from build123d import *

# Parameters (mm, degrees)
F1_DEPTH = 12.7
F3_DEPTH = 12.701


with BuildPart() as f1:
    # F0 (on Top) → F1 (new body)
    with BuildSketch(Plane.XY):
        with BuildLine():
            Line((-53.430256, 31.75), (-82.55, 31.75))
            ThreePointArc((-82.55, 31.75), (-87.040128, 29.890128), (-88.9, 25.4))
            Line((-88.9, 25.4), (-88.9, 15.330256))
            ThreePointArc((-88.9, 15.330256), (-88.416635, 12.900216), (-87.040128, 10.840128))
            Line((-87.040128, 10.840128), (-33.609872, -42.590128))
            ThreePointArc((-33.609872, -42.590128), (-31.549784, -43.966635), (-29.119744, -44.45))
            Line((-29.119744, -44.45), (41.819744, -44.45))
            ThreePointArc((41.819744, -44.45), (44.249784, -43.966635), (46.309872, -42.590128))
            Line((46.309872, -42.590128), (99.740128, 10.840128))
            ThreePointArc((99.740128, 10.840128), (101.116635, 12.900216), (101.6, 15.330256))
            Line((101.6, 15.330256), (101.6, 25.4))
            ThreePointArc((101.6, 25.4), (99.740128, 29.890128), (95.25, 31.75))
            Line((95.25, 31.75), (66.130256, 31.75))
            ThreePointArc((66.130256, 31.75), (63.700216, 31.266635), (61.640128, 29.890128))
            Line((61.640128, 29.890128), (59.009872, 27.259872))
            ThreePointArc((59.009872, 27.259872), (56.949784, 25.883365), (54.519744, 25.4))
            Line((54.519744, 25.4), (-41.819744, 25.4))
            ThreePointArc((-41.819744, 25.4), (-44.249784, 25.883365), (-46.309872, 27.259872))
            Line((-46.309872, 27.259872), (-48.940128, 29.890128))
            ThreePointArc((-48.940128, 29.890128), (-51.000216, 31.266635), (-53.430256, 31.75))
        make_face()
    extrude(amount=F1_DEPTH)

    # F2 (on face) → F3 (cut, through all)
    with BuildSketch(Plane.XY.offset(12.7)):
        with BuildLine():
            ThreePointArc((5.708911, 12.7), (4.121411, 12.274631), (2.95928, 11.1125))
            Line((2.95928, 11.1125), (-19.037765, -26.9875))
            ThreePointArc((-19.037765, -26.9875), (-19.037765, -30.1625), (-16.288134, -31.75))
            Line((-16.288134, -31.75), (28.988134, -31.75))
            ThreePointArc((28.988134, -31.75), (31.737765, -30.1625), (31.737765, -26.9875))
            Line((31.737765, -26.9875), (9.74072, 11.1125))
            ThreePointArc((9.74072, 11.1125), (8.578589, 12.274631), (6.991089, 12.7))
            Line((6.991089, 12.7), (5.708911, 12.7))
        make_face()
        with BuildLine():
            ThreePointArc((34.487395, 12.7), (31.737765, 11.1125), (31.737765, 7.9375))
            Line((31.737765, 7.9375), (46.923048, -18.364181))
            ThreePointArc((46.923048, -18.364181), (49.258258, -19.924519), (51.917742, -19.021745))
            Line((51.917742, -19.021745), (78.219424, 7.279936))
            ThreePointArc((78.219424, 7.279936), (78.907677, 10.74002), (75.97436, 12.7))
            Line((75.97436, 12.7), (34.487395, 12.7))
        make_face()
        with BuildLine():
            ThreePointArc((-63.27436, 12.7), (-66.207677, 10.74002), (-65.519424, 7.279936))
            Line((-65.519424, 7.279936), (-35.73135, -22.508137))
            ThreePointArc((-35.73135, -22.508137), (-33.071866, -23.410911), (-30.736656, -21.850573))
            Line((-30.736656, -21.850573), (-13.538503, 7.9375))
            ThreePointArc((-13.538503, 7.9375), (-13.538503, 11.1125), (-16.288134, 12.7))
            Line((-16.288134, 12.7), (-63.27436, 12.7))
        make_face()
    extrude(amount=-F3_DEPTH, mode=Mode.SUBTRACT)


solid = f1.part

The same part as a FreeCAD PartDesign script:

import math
import FreeCAD as App
import Part
import Sketcher

V = App.Vector
Q = App.Units.Quantity

doc = App.newDocument("Part")
body = doc.addObject("PartDesign::Body", "Body")

# Sketch on XY plane
sketch1 = body.newObject("Sketcher::SketchObject", "Sketch")
sketch1.AttachmentSupport = (doc.getObject("XY_Plane"), [""])
sketch1.MapMode = "FlatFace"
sketch1.addGeometry(Part.LineSegment(V(-53.4, 31.8, 0), V(-82.5, 31.8, 0)), False)
sketch1.addGeometry(Part.ArcOfCircle(Part.Circle(V(-82.5, 25.4, 0), V(0, 0, 1), 6.4), math.radians(90), math.radians(180)), False)
sketch1.addGeometry(Part.LineSegment(V(-88.9, 25.4, 0), V(-88.9, 15.3, 0)), False)
sketch1.addGeometry(Part.ArcOfCircle(Part.Circle(V(-82.6, 15.3, 0), V(0, 0, 1), 6.3), math.radians(180), math.radians(225)), False)
sketch1.addGeometry(Part.LineSegment(V(-87, 10.8, 0), V(-33.6, -42.6, 0)), False)
sketch1.addGeometry(Part.ArcOfCircle(Part.Circle(V(-29.1, -38.1, 0), V(0, 0, 1), 6.3), math.radians(-135), math.radians(-90)), False)
sketch1.addGeometry(Part.LineSegment(V(-29.1, -44.5, 0), V(41.8, -44.5, 0)), False)
sketch1.addGeometry(Part.ArcOfCircle(Part.Circle(V(41.8, -38.1, 0), V(0, 0, 1), 6.3), math.radians(-90), math.radians(-45)), False)
sketch1.addGeometry(Part.LineSegment(V(46.3, -42.6, 0), V(99.7, 10.8, 0)), False)
sketch1.addGeometry(Part.ArcOfCircle(Part.Circle(V(95.3, 15.3, 0), V(0, 0, 1), 6.3), math.radians(-45), math.radians(0)), False)
sketch1.addGeometry(Part.LineSegment(V(101.6, 15.3, 0), V(101.6, 25.4, 0)), False)
sketch1.addGeometry(Part.ArcOfCircle(Part.Circle(V(95.2, 25.4, 0), V(0, 0, 1), 6.4), math.radians(0), math.radians(90)), False)
sketch1.addGeometry(Part.LineSegment(V(95.2, 31.8, 0), V(66.1, 31.8, 0)), False)
sketch1.addGeometry(Part.ArcOfCircle(Part.Circle(V(66.1, 25.4, 0), V(0, 0, 1), 6.3), math.radians(90), math.radians(135)), False)
sketch1.addGeometry(Part.LineSegment(V(61.6, 29.9, 0), V(59, 27.3, 0)), False)
sketch1.addGeometry(Part.ArcOfCircle(Part.Circle(V(54.5, 31.7, 0), V(0, 0, 1), 6.3), math.radians(-90), math.radians(-45)), False)
sketch1.addGeometry(Part.LineSegment(V(54.5, 25.4, 0), V(-41.8, 25.4, 0)), False)
sketch1.addGeometry(Part.ArcOfCircle(Part.Circle(V(-41.8, 31.7, 0), V(0, 0, 1), 6.3), math.radians(-135), math.radians(-90)), False)
sketch1.addGeometry(Part.LineSegment(V(-46.3, 27.3, 0), V(-48.9, 29.9, 0)), False)
sketch1.addGeometry(Part.ArcOfCircle(Part.Circle(V(-53.4, 25.4, 0), V(0, 0, 1), 6.3), math.radians(45), math.radians(90)), False)
sketch1.addConstraint(Sketcher.Constraint("Tangent", 0, 2, 1, 1))
sketch1.addConstraint(Sketcher.Constraint("Tangent", 1, 2, 2, 1))
sketch1.addConstraint(Sketcher.Constraint("Tangent", 2, 2, 3, 1))
sketch1.addConstraint(Sketcher.Constraint("Tangent", 3, 2, 4, 1))
sketch1.addConstraint(Sketcher.Constraint("Tangent", 4, 2, 5, 1))
sketch1.addConstraint(Sketcher.Constraint("Tangent", 5, 2, 6, 1))
sketch1.addConstraint(Sketcher.Constraint("Tangent", 6, 2, 7, 1))
sketch1.addConstraint(Sketcher.Constraint("Tangent", 7, 2, 8, 1))
sketch1.addConstraint(Sketcher.Constraint("Tangent", 8, 2, 9, 1))
sketch1.addConstraint(Sketcher.Constraint("Tangent", 9, 2, 10, 1))
sketch1.addConstraint(Sketcher.Constraint("Tangent", 10, 2, 11, 1))
sketch1.addConstraint(Sketcher.Constraint("Tangent", 11, 2, 12, 1))
sketch1.addConstraint(Sketcher.Constraint("Tangent", 12, 2, 13, 1))
sketch1.addConstraint(Sketcher.Constraint("Tangent", 13, 2, 14, 1))
sketch1.addConstraint(Sketcher.Constraint("Tangent", 14, 2, 15, 2))
sketch1.addConstraint(Sketcher.Constraint("Tangent", 15, 1, 16, 1))
sketch1.addConstraint(Sketcher.Constraint("Tangent", 16, 2, 17, 2))
sketch1.addConstraint(Sketcher.Constraint("Tangent", 17, 1, 18, 1))
sketch1.addConstraint(Sketcher.Constraint("Tangent", 18, 2, 19, 1))
sketch1.addConstraint(Sketcher.Constraint("Tangent", 19, 2, 0, 1))
sketch1.addConstraint(Sketcher.Constraint("Horizontal", 0))
sketch1.addConstraint(Sketcher.Constraint("Vertical", 2))
sketch1.addConstraint(Sketcher.Constraint("Horizontal", 6))
sketch1.addConstraint(Sketcher.Constraint("Vertical", 10))
sketch1.addConstraint(Sketcher.Constraint("Horizontal", 12))
sketch1.addConstraint(Sketcher.Constraint("Horizontal", 16))
sketch1.addConstraint(Sketcher.Constraint("Equal", 1, 3))
sketch1.addConstraint(Sketcher.Constraint("Equal", 3, 5))
sketch1.addConstraint(Sketcher.Constraint("Equal", 5, 7))
sketch1.addConstraint(Sketcher.Constraint("Equal", 7, 9))
sketch1.addConstraint(Sketcher.Constraint("Equal", 9, 11))
sketch1.addConstraint(Sketcher.Constraint("Equal", 11, 13))
sketch1.addConstraint(Sketcher.Constraint("Equal", 13, 15))
sketch1.addConstraint(Sketcher.Constraint("Equal", 15, 17))
sketch1.addConstraint(Sketcher.Constraint("Equal", 17, 19))
sketch1.addConstraint(Sketcher.Constraint("Perpendicular", 4, 8))
sketch1.addConstraint(Sketcher.Constraint("Parallel", 8, 14))
sketch1.addConstraint(Sketcher.Constraint("Perpendicular", 14, 18))
sketch1.addConstraint(Sketcher.Constraint("Horizontal", 3, 3, 9, 3))
sketch1.addConstraint(Sketcher.Constraint("Horizontal", 1, 3, 11, 3))
sketch1.addConstraint(Sketcher.Constraint("Horizontal", 17, 3, 0, 2))
sketch1.addConstraint(Sketcher.Constraint("Horizontal", 4, 2, 7, 2))
sketch1.addConstraint(Sketcher.Constraint("Equal", 0, 12))
sketch1.addConstraint(Sketcher.Constraint("Radius", 1, Q("0.25 in")))
sketch1.addConstraint(Sketcher.Constraint("DistanceY", -1, 1, 1, 3, Q("1 in")))
sketch1.addConstraint(Sketcher.Constraint("DistanceX", -1, 1, 9, 2, Q("4 in")))
sketch1.addConstraint(Sketcher.Constraint("DistanceX", 3, 3, 9, 3, Q("7.0000001 in")))
sketch1.addConstraint(Sketcher.Constraint("DistanceY", 5, 2, 17, 3, Q("3 in")))
sketch1.addConstraint(Sketcher.Constraint("DistanceX", 7, 3, 15, 3, Q("0.5 in")))
sketch1.addConstraint(Sketcher.Constraint("DistanceX", 5, 3, 13, 3, Q("3.75 in")))
pad1 = body.newObject("PartDesign::Pad", "Pad")
pad1.Profile = sketch1
pad1.Length = Q("0.5 in")

# Sketch on XY plane
sketch2 = body.newObject("Sketcher::SketchObject", "Sketch001")
sketch2.AttachmentSupport = (doc.getObject("XY_Plane"), [""])
sketch2.MapMode = "FlatFace"
sketch2.AttachmentOffset = App.Placement(V(0, 0, 0.5 * 25.4), App.Rotation())
sketch2.addGeometry(Part.ArcOfCircle(Part.Circle(V(5.7, 9.5, 0), V(0, 0, 1), 3.2), math.radians(90), math.radians(150)), False)
sketch2.addGeometry(Part.LineSegment(V(3, 11.1, 0), V(-19, -27, 0)), False)
sketch2.addGeometry(Part.ArcOfCircle(Part.Circle(V(-16.3, -28.6, 0), V(0, 0, 1), 3.2), math.radians(150), math.radians(270)), False)
sketch2.addGeometry(Part.LineSegment(V(-16.3, -31.8, 0), V(29, -31.8, 0)), False)
sketch2.addGeometry(Part.ArcOfCircle(Part.Circle(V(29, -28.6, 0), V(0, 0, 1), 3.2), math.radians(-90), math.radians(30)), False)
sketch2.addGeometry(Part.LineSegment(V(31.7, -27, 0), V(9.7, 11.1, 0)), False)
sketch2.addGeometry(Part.ArcOfCircle(Part.Circle(V(7, 9.5, 0), V(0, 0, 1), 3.2), math.radians(30), math.radians(90)), False)
sketch2.addGeometry(Part.LineSegment(V(7, 12.7, 0), V(5.7, 12.7, 0)), False)
sketch2.addGeometry(Part.ArcOfCircle(Part.Circle(V(34.5, 9.5, 0), V(0, 0, 1), 3.2), math.radians(90), math.radians(210)), False)
sketch2.addGeometry(Part.LineSegment(V(31.7, 7.9, 0), V(46.9, -18.4, 0)), False)
sketch2.addGeometry(Part.ArcOfCircle(Part.Circle(V(49.7, -16.8, 0), V(0, 0, 1), 3.2), math.radians(-150), math.radians(-45)), False)
sketch2.addGeometry(Part.LineSegment(V(51.9, -19, 0), V(78.2, 7.3, 0)), False)
sketch2.addGeometry(Part.ArcOfCircle(Part.Circle(V(76, 9.5, 0), V(0, 0, 1), 3.2), math.radians(-45), math.radians(90)), False)
sketch2.addGeometry(Part.LineSegment(V(76, 12.7, 0), V(34.5, 12.7, 0)), False)
sketch2.addGeometry(Part.ArcOfCircle(Part.Circle(V(-63.3, 9.5, 0), V(0, 0, 1), 3.2), math.radians(90), math.radians(225)), False)
sketch2.addGeometry(Part.LineSegment(V(-65.5, 7.3, 0), V(-35.7, -22.5, 0)), False)
sketch2.addGeometry(Part.ArcOfCircle(Part.Circle(V(-33.5, -20.3, 0), V(0, 0, 1), 3.2), math.radians(-135), math.radians(-30)), False)
sketch2.addGeometry(Part.LineSegment(V(-30.7, -21.9, 0), V(-13.5, 7.9, 0)), False)
sketch2.addGeometry(Part.ArcOfCircle(Part.Circle(V(-16.3, 9.5, 0), V(0, 0, 1), 3.2), math.radians(-30), math.radians(90)), False)
sketch2.addGeometry(Part.LineSegment(V(-16.3, 12.7, 0), V(-63.3, 12.7, 0)), False)
sketch2.addConstraint(Sketcher.Constraint("Tangent", 0, 2, 1, 1))
sketch2.addConstraint(Sketcher.Constraint("Tangent", 1, 2, 2, 1))
sketch2.addConstraint(Sketcher.Constraint("Tangent", 2, 2, 3, 1))
sketch2.addConstraint(Sketcher.Constraint("Tangent", 3, 2, 4, 1))
sketch2.addConstraint(Sketcher.Constraint("Tangent", 4, 2, 5, 1))
sketch2.addConstraint(Sketcher.Constraint("Tangent", 5, 2, 6, 1))
sketch2.addConstraint(Sketcher.Constraint("Tangent", 6, 2, 7, 1))
sketch2.addConstraint(Sketcher.Constraint("Tangent", 7, 2, 0, 1))
sketch2.addConstraint(Sketcher.Constraint("Tangent", 8, 2, 9, 1))
sketch2.addConstraint(Sketcher.Constraint("Tangent", 9, 2, 10, 1))
sketch2.addConstraint(Sketcher.Constraint("Tangent", 10, 2, 11, 1))
sketch2.addConstraint(Sketcher.Constraint("Tangent", 11, 2, 12, 1))
sketch2.addConstraint(Sketcher.Constraint("Tangent", 12, 2, 13, 1))
sketch2.addConstraint(Sketcher.Constraint("Tangent", 13, 2, 8, 1))
sketch2.addConstraint(Sketcher.Constraint("Tangent", 14, 2, 15, 1))
sketch2.addConstraint(Sketcher.Constraint("Tangent", 15, 2, 16, 1))
sketch2.addConstraint(Sketcher.Constraint("Tangent", 16, 2, 17, 1))
sketch2.addConstraint(Sketcher.Constraint("Tangent", 17, 2, 18, 1))
sketch2.addConstraint(Sketcher.Constraint("Tangent", 18, 2, 19, 1))
sketch2.addConstraint(Sketcher.Constraint("Tangent", 19, 2, 14, 1))
sketch2.addConstraint(Sketcher.Constraint("Horizontal", 3))
sketch2.addConstraint(Sketcher.Constraint("Horizontal", 7))
sketch2.addConstraint(Sketcher.Constraint("Horizontal", 13))
sketch2.addConstraint(Sketcher.Constraint("Horizontal", 19))
sketch2.addConstraint(Sketcher.Constraint("Equal", 0, 2))
sketch2.addConstraint(Sketcher.Constraint("Equal", 2, 4))
sketch2.addConstraint(Sketcher.Constraint("Equal", 4, 6))
sketch2.addConstraint(Sketcher.Constraint("Equal", 6, 8))
sketch2.addConstraint(Sketcher.Constraint("Equal", 8, 10))
sketch2.addConstraint(Sketcher.Constraint("Equal", 10, 12))
sketch2.addConstraint(Sketcher.Constraint("Equal", 12, 14))
sketch2.addConstraint(Sketcher.Constraint("Equal", 14, 16))
sketch2.addConstraint(Sketcher.Constraint("Equal", 16, 18))
sketch2.addConstraint(Sketcher.Constraint("Parallel", 5, 9))
sketch2.addConstraint(Sketcher.Constraint("Perpendicular", 11, 15))
sketch2.addConstraint(Sketcher.Constraint("Parallel", 1, 17))
sketch2.addConstraint(Sketcher.Constraint("Horizontal", 6, 3, 8, 3))
sketch2.addConstraint(Sketcher.Constraint("Horizontal", 12, 3, 14, 3))
sketch2.addConstraint(Sketcher.Constraint("Horizontal", 1, 2, 4, 2))
sketch2.addConstraint(Sketcher.Constraint("Horizontal", 11, 2, 14, 2))
sketch2.addConstraint(Sketcher.Constraint("Vertical", 2, 3, 18, 3))
sketch2.addConstraint(Sketcher.Constraint("Vertical", 4, 2, 8, 2))
sketch2.addConstraint(Sketcher.Constraint("Angle", 1, Q("-120 deg")))
sketch2.addConstraint(Sketcher.Constraint("Radius", 0, Q("0.125 in")))
sketch2.addConstraint(Sketcher.Constraint("DistanceY", -1, 1, 6, 2, Q("0.5 in")))
sketch2.addConstraint(Sketcher.Constraint("DistanceY", 2, 3, 0, 3, Q("1.5 in")))
sketch2.addConstraint(Sketcher.Constraint("DistanceX", 3, 1, 3, 2, Q("45.276268 mm")))
sketch2.addConstraint(Sketcher.Constraint("DistanceX", 13, 2, 13, 1, Q("41.486965 mm")))
sketch2.addConstraint(Sketcher.Constraint("DistanceX", 19, 2, 19, 1, Q("46.986226 mm")))
sketch2.addConstraint(Sketcher.Constraint("DistanceX", -1, 1, 0, 3, Q("5.70891 mm")))
pocket1 = body.newObject("PartDesign::Pocket", "Pocket")
pocket1.Profile = sketch2
pocket1.Type = "ThroughAll"

doc.recompute()
